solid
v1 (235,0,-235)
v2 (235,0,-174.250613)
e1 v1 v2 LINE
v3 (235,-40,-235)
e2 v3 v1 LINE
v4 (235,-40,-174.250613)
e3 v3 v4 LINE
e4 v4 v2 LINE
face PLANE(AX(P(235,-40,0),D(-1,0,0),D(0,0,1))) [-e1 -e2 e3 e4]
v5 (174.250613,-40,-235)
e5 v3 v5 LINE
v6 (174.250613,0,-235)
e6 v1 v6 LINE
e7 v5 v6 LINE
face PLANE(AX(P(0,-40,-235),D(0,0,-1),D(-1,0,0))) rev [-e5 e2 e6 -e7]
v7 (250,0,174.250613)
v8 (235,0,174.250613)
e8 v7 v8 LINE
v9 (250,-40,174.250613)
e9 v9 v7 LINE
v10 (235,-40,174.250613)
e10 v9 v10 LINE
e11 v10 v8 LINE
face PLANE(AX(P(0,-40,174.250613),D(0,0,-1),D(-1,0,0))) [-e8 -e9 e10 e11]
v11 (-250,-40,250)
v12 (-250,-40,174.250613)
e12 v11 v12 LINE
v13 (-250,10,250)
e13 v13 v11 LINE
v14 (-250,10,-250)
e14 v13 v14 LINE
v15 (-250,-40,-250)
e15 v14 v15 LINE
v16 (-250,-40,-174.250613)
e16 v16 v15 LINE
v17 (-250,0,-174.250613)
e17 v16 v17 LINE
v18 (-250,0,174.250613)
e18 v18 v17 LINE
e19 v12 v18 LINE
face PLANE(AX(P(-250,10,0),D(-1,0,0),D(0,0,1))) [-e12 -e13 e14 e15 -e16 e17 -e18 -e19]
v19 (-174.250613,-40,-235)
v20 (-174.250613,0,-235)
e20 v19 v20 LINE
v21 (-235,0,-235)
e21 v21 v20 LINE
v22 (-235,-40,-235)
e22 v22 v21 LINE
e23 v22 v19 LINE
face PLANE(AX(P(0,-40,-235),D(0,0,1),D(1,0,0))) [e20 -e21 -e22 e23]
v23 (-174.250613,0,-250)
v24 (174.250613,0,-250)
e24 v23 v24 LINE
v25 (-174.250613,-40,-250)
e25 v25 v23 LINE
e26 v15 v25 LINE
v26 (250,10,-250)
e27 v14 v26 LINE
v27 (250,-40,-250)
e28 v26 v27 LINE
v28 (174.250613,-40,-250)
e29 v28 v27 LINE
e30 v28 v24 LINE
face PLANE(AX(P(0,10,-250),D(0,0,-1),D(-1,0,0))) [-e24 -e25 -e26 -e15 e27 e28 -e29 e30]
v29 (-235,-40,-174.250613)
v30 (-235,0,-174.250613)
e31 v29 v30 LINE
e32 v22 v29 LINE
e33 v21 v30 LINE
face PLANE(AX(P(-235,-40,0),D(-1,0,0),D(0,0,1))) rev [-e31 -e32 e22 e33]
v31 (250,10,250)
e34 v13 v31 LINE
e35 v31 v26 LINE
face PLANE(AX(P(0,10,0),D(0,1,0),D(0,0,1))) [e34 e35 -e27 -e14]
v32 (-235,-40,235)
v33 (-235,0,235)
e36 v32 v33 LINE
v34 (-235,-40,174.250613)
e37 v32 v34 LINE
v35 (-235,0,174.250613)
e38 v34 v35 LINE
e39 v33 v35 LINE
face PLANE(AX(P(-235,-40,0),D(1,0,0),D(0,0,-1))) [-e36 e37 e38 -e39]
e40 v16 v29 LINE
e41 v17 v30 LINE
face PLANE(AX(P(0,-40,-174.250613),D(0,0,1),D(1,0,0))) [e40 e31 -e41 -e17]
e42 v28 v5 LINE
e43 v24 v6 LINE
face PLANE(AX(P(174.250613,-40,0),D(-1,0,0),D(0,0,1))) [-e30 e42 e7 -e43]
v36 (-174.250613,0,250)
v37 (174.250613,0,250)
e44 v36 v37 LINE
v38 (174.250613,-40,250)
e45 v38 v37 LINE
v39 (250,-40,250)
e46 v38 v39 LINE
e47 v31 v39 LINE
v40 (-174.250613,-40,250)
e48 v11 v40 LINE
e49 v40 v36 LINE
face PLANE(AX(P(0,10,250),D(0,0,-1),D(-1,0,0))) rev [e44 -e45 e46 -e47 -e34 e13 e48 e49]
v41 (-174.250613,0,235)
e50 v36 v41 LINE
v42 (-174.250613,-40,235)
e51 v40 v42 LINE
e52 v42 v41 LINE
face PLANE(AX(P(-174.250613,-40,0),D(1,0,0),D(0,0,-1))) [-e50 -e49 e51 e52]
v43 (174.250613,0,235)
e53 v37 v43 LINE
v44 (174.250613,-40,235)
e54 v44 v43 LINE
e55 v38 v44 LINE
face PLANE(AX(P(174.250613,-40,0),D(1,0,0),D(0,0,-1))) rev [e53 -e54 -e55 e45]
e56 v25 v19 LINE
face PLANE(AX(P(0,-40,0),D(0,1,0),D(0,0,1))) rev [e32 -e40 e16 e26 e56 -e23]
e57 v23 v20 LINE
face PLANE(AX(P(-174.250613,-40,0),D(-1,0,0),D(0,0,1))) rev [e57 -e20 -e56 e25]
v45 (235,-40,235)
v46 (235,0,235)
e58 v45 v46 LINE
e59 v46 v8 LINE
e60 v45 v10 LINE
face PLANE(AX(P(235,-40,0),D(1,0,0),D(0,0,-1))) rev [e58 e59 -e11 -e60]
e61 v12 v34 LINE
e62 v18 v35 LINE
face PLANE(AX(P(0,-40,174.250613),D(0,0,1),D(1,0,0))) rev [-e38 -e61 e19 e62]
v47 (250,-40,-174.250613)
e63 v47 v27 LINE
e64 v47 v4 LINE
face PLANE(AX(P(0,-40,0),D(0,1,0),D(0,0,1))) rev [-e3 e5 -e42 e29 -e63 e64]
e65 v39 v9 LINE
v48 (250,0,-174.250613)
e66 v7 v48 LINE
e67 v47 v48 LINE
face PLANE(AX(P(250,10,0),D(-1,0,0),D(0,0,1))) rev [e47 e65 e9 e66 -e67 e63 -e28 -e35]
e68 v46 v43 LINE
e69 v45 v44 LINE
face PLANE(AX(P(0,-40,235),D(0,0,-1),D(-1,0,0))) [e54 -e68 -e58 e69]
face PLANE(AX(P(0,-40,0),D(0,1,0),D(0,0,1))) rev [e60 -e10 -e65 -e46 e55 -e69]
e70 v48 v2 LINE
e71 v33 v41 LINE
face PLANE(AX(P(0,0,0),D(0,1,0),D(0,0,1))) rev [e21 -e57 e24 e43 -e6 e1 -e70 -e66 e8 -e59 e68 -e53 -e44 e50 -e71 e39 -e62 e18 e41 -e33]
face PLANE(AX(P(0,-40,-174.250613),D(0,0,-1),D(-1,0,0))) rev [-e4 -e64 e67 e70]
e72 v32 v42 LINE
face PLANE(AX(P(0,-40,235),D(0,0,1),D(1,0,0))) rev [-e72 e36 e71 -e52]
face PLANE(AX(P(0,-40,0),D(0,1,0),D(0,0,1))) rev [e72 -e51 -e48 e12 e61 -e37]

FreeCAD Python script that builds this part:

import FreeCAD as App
import Part
import Sketcher
Q = App.Units.Quantity


def add_polygon(sketch, points):
    """Adds a closed chain of lines whose ends are joined by coincident constraints."""
    first, n = sketch.GeometryCount, len(points)
    for a, b in zip(points, points[1:] + points[:1]):
        sketch.addGeometry(Part.LineSegment(App.Vector(*a, 0), App.Vector(*b, 0)), False)
    for i in range(n):
        sketch.addConstraint(Sketcher.Constraint("Coincident", first + i, 2, first + (i + 1) % n, 1))

doc = App.newDocument("Part")
body = doc.addObject("PartDesign::Body", "Body")

# Sketch on XZ plane
sketch1 = body.newObject("Sketcher::SketchObject", "Sketch")
sketch1.AttachmentSupport = (doc.getObject("XZ_Plane"), [""])
sketch1.MapMode = "FlatFace"
add_polygon(sketch1, [(250, 250), (250, -250), (-250, -250), (-250, 250)])  # lines 0-3
sketch1.addConstraint([
    Sketcher.Constraint("Vertical", 0),
    Sketcher.Constraint("Horizontal", 1),
    Sketcher.Constraint("Vertical", 2),
    Sketcher.Constraint("Horizontal", 3),
    Sketcher.Constraint("Symmetric", 0, 2, 2, 2, -1, 1),
    Sketcher.Constraint("Equal", 3, 0),
    Sketcher.Constraint("DistanceX", 1, 2, 1, 1, Q("500 mm")),
])
pad1 = body.newObject("PartDesign::Pad", "Pad")
pad1.Profile = sketch1
pad1.Length = 10
pad1.Reversed = True

# Sketch on XZ plane
sketch2 = body.newObject("Sketcher::SketchObject", "Sketch001")
sketch2.AttachmentSupport = (doc.getObject("XZ_Plane"), [""])
sketch2.MapMode = "FlatFace"
add_polygon(sketch2, [(-250, 174), (-250, 250), (-174, 250), (-174, 235), (-235, 235), (-235, 174)])  # lines 0-5
add_polygon(sketch2, [(174, 235), (174, 250), (250, 250), (250, 174), (235, 174), (235, 235)])  # lines 6-11
add_polygon(sketch2, [(-250, -250), (-250, -174), (-235, -174), (-235, -235), (-174, -235), (-174, -250)])  # lines 12-17
add_polygon(sketch2, [(235, -174), (250, -174), (250, -250), (174, -250), (174, -235), (235, -235)])  # lines 18-23
sketch2.addConstraint([
    Sketcher.Constraint("Vertical", 0),
    Sketcher.Constraint("Horizontal", 1),
    Sketcher.Constraint("Vertical", 2),
    Sketcher.Constraint("Horizontal", 3),
    Sketcher.Constraint("Vertical", 4),
    Sketcher.Constraint("Horizontal", 5),
    Sketcher.Constraint("Vertical", 6),
    Sketcher.Constraint("Horizontal", 7),
    Sketcher.Constraint("Vertical", 8),
    Sketcher.Constraint("Horizontal", 9),
    Sketcher.Constraint("Vertical", 10),
    Sketcher.Constraint("Horizontal", 11),
    Sketcher.Constraint("Vertical", 12),
    Sketcher.Constraint("Horizontal", 13),
    Sketcher.Constraint("Vertical", 14),
    Sketcher.Constraint("Horizontal", 15),
    Sketcher.Constraint("Vertical", 16),
    Sketcher.Constraint("Horizontal", 17),
    Sketcher.Constraint("Horizontal", 18),
    Sketcher.Constraint("Vertical", 19),
    Sketcher.Constraint("Horizontal", 20),
    Sketcher.Constraint("Vertical", 21),
    Sketcher.Constraint("Horizontal", 22),
    Sketcher.Constraint("Vertical", 23),
    Sketcher.Constraint("Symmetric", 8, 2, 12, 2, -1, 1),
    Sketcher.Constraint("Symmetric", 10, 2, 14, 2, -1, 1),
    Sketcher.Constraint("Symmetric", 6, 2, 16, 2, -1, 1),
    Sketcher.Constraint("Symmetric", 5, 2, 18, 2, -1, 1),
    Sketcher.Constraint("Symmetric", 1, 2, 20, 2, -1, 1),
    Sketcher.Constraint("Symmetric", 3, 2, 22, 2, -1, 1),
    Sketcher.Constraint("Symmetric", 1, 2, 6, 2, -2),
    Sketcher.Constraint("Symmetric", 5, 2, 8, 2, -2),
    Sketcher.Constraint("Symmetric", 3, 2, 10, 2, -2),
    Sketcher.Constraint("Equal", 20, 0),
    Sketcher.Constraint("Equal", 18, 2),
    Sketcher.Constraint("DistanceX", 5, 2, 5, 1, Q("15 mm")),
    Sketcher.Constraint("DistanceX", 0, 2, -1, 1, Q("250 mm")),
    Sketcher.Constraint("DistanceY", -1, 1, 0, 2, Q("250 mm")),
    Sketcher.Constraint("DistanceX", 1, 1, 1, 2, Q("75.749387 mm")),
])
pad2 = body.newObject("PartDesign::Pad", "Pad001")
pad2.Profile = sketch2
pad2.Length = 40

doc.recompute()
